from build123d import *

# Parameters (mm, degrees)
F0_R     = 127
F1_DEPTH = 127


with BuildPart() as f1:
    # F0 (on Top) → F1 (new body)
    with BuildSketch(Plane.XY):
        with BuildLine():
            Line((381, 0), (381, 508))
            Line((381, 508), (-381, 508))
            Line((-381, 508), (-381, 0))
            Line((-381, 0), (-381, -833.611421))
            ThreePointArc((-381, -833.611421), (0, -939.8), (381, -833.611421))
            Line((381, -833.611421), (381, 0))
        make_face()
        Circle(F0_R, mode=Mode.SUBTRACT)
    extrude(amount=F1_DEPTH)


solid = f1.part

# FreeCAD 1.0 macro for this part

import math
import FreeCAD as App
import Part
import Sketcher
from FreeCAD import Vector
Q = App.Units.Quantity

doc = App.newDocument("Part")
params = doc.addObject("Spreadsheet::Sheet", "Params")
for row, (alias, value) in enumerate([
    ("sketch1_diameter", "10 in"),
    ("sketch1_radius", "28.9999999 in"),
    ("sketch1_width", "30 in"),
    ("pad1_length", "5 in"),
], start=1):
    params.set(f"A{row}", alias)
    params.set(f"B{row}", "=" + value)
    params.setAlias(f"B{row}", alias)

body = doc.addObject("PartDesign::Body", "Body")

# Sketch on XY plane
sketch1 = body.newObject("Sketcher::SketchObject", "Sketch")
sketch1.AttachmentSupport = (doc.getObject("XY_Plane"), [""])
sketch1.MapMode = "FlatFace"
sketch1.addGeometry([
    Part.LineSegment(Vector(381, 508, 0), Vector(-381, 508, 0)),  # 0
    Part.LineSegment(Vector(-381, 508, 0), Vector(-381, -834, 0)),  # 1
    Part.ArcOfCircle(Part.Circle(Vector(0, -203, 0), Vector(0, 0, 1), 737), math.radians(-121), math.radians(-59)),  # 2
    Part.LineSegment(Vector(381, -834, 0), Vector(381, 508, 0)),  # 3
    Part.Circle(Vector(0, 0, 0), Vector(0, 0, 1), 127),  # 4
], False)
sketch1.addConstraint([
    Sketcher.Constraint("Coincident", 0, 2, 1, 1),
    Sketcher.Constraint("Coincident", 1, 2, 2, 1),
    Sketcher.Constraint("Coincident", 2, 2, 3, 1),
    Sketcher.Constraint("Coincident", 3, 2, 0, 1),
    Sketcher.Constraint("Horizontal", 0),
    Sketcher.Constraint("Vertical", 1),
    Sketcher.Constraint("Vertical", 3),
    Sketcher.Constraint("Coincident", 4, 3, -1, 1),
    Sketcher.Constraint("PointOnObject", 2, 3, -2),
    Sketcher.Constraint("Equal", 1, 3),
    Sketcher.Constraint("Diameter", 4, Q("10 in")),
    Sketcher.Constraint("Radius", 2, Q("28.9999999 in")),
    Sketcher.Constraint("DistanceX", 0, 2, 0, 1, Q("30 in")),
    Sketcher.Constraint("DistanceY", 2, 3, -1, 1, Q("8.0000001 in")),
    Sketcher.Constraint("DistanceY", -1, 1, 0, 2, Q("20 in")),
])
sketch1.setExpression("Constraints[10]", "Params.sketch1_diameter")
sketch1.setExpression("Constraints[11]", "Params.sketch1_radius")
sketch1.setExpression("Constraints[12]", "Params.sketch1_width")
pad1 = body.newObject("PartDesign::Pad", "Pad")
pad1.Profile = sketch1
pad1.setExpression("Length", "Params.pad1_length")

doc.recompute()
